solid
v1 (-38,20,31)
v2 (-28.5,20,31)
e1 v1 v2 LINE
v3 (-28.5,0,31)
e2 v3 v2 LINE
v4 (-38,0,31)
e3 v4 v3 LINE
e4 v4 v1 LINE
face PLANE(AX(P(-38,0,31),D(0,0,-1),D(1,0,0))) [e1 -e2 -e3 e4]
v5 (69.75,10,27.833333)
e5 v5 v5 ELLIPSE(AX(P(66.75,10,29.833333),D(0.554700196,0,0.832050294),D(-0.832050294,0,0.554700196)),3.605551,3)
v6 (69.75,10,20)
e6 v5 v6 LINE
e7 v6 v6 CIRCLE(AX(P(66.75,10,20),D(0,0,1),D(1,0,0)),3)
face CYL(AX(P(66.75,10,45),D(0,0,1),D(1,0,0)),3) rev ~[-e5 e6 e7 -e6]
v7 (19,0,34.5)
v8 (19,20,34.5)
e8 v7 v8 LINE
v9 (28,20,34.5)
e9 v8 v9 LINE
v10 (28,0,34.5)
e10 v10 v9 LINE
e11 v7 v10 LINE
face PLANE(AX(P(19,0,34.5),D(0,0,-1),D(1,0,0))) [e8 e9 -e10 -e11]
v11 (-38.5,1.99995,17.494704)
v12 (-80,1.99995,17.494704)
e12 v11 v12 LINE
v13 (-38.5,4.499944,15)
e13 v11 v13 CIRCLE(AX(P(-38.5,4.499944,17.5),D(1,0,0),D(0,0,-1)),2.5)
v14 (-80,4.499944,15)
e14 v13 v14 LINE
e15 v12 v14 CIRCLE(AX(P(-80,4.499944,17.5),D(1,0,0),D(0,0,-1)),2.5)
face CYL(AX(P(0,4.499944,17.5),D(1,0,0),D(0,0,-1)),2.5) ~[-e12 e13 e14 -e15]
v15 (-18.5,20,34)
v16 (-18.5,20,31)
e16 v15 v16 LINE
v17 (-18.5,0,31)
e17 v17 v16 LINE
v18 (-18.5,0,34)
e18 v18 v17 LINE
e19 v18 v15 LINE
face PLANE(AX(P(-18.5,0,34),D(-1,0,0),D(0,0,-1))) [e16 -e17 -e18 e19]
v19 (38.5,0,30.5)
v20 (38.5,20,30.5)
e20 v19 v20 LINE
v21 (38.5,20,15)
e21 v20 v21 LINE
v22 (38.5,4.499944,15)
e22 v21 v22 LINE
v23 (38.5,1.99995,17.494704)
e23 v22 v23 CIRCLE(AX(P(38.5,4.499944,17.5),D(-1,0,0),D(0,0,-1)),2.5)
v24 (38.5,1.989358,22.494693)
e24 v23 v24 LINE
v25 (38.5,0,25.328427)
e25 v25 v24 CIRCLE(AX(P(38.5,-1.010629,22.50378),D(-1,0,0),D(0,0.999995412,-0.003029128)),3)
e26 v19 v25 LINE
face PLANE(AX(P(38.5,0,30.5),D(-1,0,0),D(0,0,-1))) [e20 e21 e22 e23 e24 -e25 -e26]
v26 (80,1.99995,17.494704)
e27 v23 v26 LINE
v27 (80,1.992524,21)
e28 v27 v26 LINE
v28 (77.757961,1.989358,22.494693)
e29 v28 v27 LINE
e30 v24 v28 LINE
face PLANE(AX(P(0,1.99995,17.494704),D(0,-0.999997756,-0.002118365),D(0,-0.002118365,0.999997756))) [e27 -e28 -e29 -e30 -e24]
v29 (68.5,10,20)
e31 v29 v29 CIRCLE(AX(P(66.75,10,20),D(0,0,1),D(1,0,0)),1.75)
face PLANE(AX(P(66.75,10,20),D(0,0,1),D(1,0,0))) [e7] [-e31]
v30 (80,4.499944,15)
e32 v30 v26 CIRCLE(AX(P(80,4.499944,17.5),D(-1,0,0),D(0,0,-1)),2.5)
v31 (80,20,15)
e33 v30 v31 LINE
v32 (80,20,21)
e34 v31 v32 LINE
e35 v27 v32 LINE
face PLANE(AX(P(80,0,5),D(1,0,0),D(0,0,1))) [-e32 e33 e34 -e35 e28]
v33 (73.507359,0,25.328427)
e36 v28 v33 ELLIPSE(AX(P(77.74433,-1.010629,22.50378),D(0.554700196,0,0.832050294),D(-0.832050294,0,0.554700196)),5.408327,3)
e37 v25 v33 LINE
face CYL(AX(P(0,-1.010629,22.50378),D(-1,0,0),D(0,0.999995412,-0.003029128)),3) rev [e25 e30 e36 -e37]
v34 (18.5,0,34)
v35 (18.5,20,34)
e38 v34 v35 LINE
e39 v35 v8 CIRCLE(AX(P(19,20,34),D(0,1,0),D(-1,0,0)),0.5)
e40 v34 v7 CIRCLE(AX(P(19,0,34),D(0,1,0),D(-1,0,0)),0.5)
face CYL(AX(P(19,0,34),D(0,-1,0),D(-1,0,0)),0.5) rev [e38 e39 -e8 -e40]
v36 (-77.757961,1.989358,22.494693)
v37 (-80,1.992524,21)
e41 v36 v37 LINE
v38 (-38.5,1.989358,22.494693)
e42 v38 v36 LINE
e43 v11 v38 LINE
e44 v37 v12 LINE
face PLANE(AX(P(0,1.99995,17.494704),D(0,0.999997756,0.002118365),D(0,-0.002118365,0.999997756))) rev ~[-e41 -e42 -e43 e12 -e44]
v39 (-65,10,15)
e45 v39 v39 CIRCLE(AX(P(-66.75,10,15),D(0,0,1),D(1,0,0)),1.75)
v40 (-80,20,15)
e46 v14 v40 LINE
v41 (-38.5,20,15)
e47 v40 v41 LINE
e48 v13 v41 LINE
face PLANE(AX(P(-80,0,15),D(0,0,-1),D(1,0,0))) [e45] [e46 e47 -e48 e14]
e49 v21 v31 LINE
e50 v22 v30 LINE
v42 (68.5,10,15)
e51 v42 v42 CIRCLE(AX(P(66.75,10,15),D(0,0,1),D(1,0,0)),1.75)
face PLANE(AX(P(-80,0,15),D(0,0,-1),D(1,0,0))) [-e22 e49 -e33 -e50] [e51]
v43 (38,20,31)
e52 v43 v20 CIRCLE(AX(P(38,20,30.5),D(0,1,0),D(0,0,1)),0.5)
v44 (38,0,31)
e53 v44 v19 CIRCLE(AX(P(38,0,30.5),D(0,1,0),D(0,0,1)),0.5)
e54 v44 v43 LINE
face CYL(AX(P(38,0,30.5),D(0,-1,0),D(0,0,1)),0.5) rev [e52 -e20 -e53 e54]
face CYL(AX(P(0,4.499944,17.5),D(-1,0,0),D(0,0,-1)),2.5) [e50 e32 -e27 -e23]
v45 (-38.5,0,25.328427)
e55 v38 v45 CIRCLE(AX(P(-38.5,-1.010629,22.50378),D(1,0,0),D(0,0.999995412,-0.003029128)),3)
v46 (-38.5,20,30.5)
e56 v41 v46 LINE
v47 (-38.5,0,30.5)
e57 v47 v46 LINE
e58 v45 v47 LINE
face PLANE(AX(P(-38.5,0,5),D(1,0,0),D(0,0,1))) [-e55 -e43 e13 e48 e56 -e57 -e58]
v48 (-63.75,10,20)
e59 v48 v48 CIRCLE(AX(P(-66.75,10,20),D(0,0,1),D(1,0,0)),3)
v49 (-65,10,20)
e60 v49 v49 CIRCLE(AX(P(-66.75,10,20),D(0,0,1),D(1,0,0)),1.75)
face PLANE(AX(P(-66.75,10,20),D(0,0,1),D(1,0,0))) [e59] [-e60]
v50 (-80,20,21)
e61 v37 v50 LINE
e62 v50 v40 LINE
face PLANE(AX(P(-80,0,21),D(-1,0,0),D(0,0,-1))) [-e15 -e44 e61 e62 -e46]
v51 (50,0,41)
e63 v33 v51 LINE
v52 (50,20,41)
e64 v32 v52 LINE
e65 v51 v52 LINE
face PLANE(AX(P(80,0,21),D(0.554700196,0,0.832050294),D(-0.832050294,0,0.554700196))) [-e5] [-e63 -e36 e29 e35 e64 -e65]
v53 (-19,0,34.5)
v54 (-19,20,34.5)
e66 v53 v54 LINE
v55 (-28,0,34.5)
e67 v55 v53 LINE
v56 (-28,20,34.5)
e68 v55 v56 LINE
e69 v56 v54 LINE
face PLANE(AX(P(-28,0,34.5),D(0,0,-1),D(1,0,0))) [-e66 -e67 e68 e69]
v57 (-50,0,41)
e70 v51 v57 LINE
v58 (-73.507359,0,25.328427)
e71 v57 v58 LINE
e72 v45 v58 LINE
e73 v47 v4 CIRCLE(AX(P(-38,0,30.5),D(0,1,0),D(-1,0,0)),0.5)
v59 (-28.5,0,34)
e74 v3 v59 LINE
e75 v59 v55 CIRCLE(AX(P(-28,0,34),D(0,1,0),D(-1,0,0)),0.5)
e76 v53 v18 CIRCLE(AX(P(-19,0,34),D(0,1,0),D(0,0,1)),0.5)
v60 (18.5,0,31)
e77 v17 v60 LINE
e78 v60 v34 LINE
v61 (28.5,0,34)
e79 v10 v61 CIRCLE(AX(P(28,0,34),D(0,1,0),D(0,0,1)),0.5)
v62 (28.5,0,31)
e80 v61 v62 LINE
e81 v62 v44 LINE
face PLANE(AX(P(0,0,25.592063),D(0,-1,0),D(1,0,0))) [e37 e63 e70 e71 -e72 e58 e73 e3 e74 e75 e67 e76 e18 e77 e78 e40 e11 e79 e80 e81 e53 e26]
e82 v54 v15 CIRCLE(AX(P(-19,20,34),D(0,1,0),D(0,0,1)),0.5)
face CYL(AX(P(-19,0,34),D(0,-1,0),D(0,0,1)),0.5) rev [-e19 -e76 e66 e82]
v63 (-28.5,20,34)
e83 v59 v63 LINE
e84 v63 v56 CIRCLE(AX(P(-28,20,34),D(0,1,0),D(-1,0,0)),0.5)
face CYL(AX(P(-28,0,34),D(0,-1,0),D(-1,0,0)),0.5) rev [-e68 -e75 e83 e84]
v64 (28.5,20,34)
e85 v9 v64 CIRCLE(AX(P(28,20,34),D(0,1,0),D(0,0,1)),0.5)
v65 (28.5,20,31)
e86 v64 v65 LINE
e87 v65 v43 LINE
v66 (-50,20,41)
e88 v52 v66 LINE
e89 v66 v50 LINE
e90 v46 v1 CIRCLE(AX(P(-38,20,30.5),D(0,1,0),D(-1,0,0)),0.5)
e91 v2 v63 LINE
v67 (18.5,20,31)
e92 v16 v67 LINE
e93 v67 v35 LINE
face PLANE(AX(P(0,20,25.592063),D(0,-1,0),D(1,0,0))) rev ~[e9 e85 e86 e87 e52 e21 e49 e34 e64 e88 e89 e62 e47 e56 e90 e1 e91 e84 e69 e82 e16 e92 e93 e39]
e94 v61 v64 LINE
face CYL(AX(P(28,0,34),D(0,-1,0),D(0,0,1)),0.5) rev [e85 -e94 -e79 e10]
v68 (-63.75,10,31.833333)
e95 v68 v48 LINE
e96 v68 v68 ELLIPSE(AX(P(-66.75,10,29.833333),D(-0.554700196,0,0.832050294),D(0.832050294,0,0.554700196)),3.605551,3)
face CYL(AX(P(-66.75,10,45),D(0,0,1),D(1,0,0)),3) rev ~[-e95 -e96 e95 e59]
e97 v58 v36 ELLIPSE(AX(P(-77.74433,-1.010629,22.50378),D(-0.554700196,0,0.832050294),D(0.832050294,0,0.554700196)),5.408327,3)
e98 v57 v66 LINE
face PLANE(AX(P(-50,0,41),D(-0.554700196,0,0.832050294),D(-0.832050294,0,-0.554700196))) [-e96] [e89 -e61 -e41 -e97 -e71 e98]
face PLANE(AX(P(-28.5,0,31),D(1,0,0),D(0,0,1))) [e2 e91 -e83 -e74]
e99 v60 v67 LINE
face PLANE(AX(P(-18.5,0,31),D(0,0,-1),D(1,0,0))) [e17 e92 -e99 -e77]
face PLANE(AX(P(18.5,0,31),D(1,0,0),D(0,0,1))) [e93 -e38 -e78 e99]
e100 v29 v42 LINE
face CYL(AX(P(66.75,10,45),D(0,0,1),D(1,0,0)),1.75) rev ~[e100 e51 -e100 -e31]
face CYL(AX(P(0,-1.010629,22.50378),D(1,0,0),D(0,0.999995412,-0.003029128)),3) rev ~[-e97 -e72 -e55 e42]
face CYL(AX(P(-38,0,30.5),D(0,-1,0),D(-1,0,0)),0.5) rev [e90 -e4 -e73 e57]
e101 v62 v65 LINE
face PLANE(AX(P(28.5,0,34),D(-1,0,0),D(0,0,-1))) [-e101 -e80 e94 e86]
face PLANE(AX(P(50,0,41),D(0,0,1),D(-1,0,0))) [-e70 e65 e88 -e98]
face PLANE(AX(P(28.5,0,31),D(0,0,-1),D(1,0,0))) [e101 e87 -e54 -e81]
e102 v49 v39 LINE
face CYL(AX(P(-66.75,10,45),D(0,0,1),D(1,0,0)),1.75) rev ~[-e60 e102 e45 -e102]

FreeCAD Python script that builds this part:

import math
import FreeCAD as App
import Part
import Sketcher
from FreeCAD import Vector

doc = App.newDocument("Part")
body = doc.addObject("PartDesign::Body", "Body")

# Sketch on XZ plane
sketch1 = body.newObject("Sketcher::SketchObject", "Sketch")
sketch1.AttachmentSupport = (doc.getObject("XZ_Plane"), [""])
sketch1.MapMode = "FlatFace"
sketch1.addGeometry(Part.LineSegment(Vector(50, 41, 0), Vector(-50, 41, 0)), False)
sketch1.addGeometry(Part.LineSegment(Vector(-50, 41, 0), Vector(-80, 21, 0)), False)
sketch1.addGeometry(Part.LineSegment(Vector(-80, 21, 0), Vector(-80, 5, 0)), False)
sketch1.addGeometry(Part.LineSegment(Vector(-80, 5, 0), Vector(-38.5, 5, 0)), False)
sketch1.addGeometry(Part.LineSegment(Vector(-38.5, 5, 0), Vector(-38.5, 30.5, 0)), False)
sketch1.addGeometry(Part.ArcOfCircle(Part.Circle(Vector(-38, 30.5, 0), Vector(0, 0, 1), 0.5), math.radians(90), math.radians(180)), False)
sketch1.addGeometry(Part.LineSegment(Vector(-38, 31, 0), Vector(-28.5, 31, 0)), False)
sketch1.addGeometry(Part.LineSegment(Vector(-28.5, 31, 0), Vector(-28.5, 34, 0)), False)
sketch1.addGeometry(Part.ArcOfCircle(Part.Circle(Vector(-28, 34, 0), Vector(0, 0, 1), 0.5), math.radians(90), math.radians(180)), False)
sketch1.addGeometry(Part.LineSegment(Vector(-28, 34.5, 0), Vector(-19, 34.5, 0)), False)
sketch1.addGeometry(Part.ArcOfCircle(Part.Circle(Vector(-19, 34, 0), Vector(0, 0, 1), 0.5), math.radians(0), math.radians(90)), False)
sketch1.addGeometry(Part.LineSegment(Vector(-18.5, 34, 0), Vector(-18.5, 31, 0)), False)
sketch1.addGeometry(Part.LineSegment(Vector(-18.5, 31, 0), Vector(18.5, 31, 0)), False)
sketch1.addGeometry(Part.LineSegment(Vector(18.5, 31, 0), Vector(18.5, 34, 0)), False)
sketch1.addGeometry(Part.ArcOfCircle(Part.Circle(Vector(19, 34, 0), Vector(0, 0, 1), 0.5), math.radians(90), math.radians(180)), False)
sketch1.addGeometry(Part.LineSegment(Vector(19, 34.5, 0), Vector(28, 34.5, 0)), False)
sketch1.addGeometry(Part.ArcOfCircle(Part.Circle(Vector(28, 34, 0), Vector(0, 0, 1), 0.5), math.radians(0), math.radians(90)), False)
sketch1.addGeometry(Part.LineSegment(Vector(28.5, 34, 0), Vector(28.5, 31, 0)), False)
sketch1.addGeometry(Part.LineSegment(Vector(28.5, 31, 0), Vector(38, 31, 0)), False)
sketch1.addGeometry(Part.ArcOfCircle(Part.Circle(Vector(38, 30.5, 0), Vector(0, 0, 1), 0.5), math.radians(0), math.radians(90)), False)
sketch1.addGeometry(Part.LineSegment(Vector(38.5, 30.5, 0), Vector(38.5, 5, 0)), False)
sketch1.addGeometry(Part.LineSegment(Vector(38.5, 5, 0), Vector(80, 5, 0)), False)
sketch1.addGeometry(Part.LineSegment(Vector(80, 5, 0), Vector(80, 21, 0)), False)
sketch1.addGeometry(Part.LineSegment(Vector(80, 21, 0), Vector(50, 41, 0)), False)
sketch1.addConstraint(Sketcher.Constraint("Coincident", 0, 2, 1, 1))
sketch1.addConstraint(Sketcher.Constraint("Coincident", 1, 2, 2, 1))
sketch1.addConstraint(Sketcher.Constraint("Coincident", 2, 2, 3, 1))
sketch1.addConstraint(Sketcher.Constraint("Coincident", 3, 2, 4, 1))
sketch1.addConstraint(Sketcher.Constraint("Tangent", 4, 2, 5, 2))
sketch1.addConstraint(Sketcher.Constraint("Tangent", 5, 1, 6, 1))
sketch1.addConstraint(Sketcher.Constraint("Coincident", 6, 2, 7, 1))
sketch1.addConstraint(Sketcher.Constraint("Tangent", 7, 2, 8, 2))
sketch1.addConstraint(Sketcher.Constraint("Tangent", 8, 1, 9, 1))
sketch1.addConstraint(Sketcher.Constraint("Tangent", 9, 2, 10, 2))
sketch1.addConstraint(Sketcher.Constraint("Tangent", 10, 1, 11, 1))
sketch1.addConstraint(Sketcher.Constraint("Coincident", 11, 2, 12, 1))
sketch1.addConstraint(Sketcher.Constraint("Coincident", 12, 2, 13, 1))
sketch1.addConstraint(Sketcher.Constraint("Tangent", 13, 2, 14, 2))
sketch1.addConstraint(Sketcher.Constraint("Tangent", 14, 1, 15, 1))
sketch1.addConstraint(Sketcher.Constraint("Tangent", 15, 2, 16, 2))
sketch1.addConstraint(Sketcher.Constraint("Tangent", 16, 1, 17, 1))
sketch1.addConstraint(Sketcher.Constraint("Coincident", 17, 2, 18, 1))
sketch1.addConstraint(Sketcher.Constraint("Tangent", 18, 2, 19, 2))
sketch1.addConstraint(Sketcher.Constraint("Tangent", 19, 1, 20, 1))
sketch1.addConstraint(Sketcher.Constraint("Coincident", 20, 2, 21, 1))
sketch1.addConstraint(Sketcher.Constraint("Coincident", 21, 2, 22, 1))
sketch1.addConstraint(Sketcher.Constraint("Coincident", 22, 2, 23, 1))
sketch1.addConstraint(Sketcher.Constraint("Coincident", 23, 2, 0, 1))
sketch1.addConstraint(Sketcher.Constraint("Horizontal", 0))
sketch1.addConstraint(Sketcher.Constraint("Vertical", 2))
sketch1.addConstraint(Sketcher.Constraint("Horizontal", 3))
sketch1.addConstraint(Sketcher.Constraint("Vertical", 4))
sketch1.addConstraint(Sketcher.Constraint("Horizontal", 6))
sketch1.addConstraint(Sketcher.Constraint("Vertical", 7))
sketch1.addConstraint(Sketcher.Constraint("Horizontal", 9))
sketch1.addConstraint(Sketcher.Constraint("Vertical", 11))
sketch1.addConstraint(Sketcher.Constraint("Horizontal", 12))
sketch1.addConstraint(Sketcher.Constraint("Vertical", 13))
sketch1.addConstraint(Sketcher.Constraint("Horizontal", 15))
sketch1.addConstraint(Sketcher.Constraint("Vertical", 17))
sketch1.addConstraint(Sketcher.Constraint("Horizontal", 18))
sketch1.addConstraint(Sketcher.Constraint("Vertical", 20))
sketch1.addConstraint(Sketcher.Constraint("Horizontal", 21))
sketch1.addConstraint(Sketcher.Constraint("Vertical", 22))
sketch1.addConstraint(Sketcher.Constraint("Equal", 5, 8))
sketch1.addConstraint(Sketcher.Constraint("Equal", 8, 10))
sketch1.addConstraint(Sketcher.Constraint("Equal", 10, 14))
sketch1.addConstraint(Sketcher.Constraint("Equal", 14, 16))
sketch1.addConstraint(Sketcher.Constraint("Equal", 16, 19))
sketch1.addConstraint(Sketcher.Constraint("Symmetric", 10, 3, 14, 3, -2))
sketch1.addConstraint(Sketcher.Constraint("Symmetric", 5, 3, 19, 3, -2))
sketch1.addConstraint(Sketcher.Constraint("Symmetric", 2, 2, 21, 2, -2))
sketch1.addConstraint(Sketcher.Constraint("Horizontal", 6, 2, 11, 2))
sketch1.addConstraint(Sketcher.Constraint("Horizontal", 1, 2, 22, 2))
sketch1.addConstraint(Sketcher.Constraint("Equal", 9, 15))
sketch1.addConstraint(Sketcher.Constraint("Equal", 1, 23))
sketch1.addConstraint(Sketcher.Constraint("Radius", 5, 0.5))
sketch1.addConstraint(Sketcher.Constraint("DistanceX", 0, 2, 0, 1, 100.0))
sketch1.addConstraint(Sketcher.Constraint("DistanceX", 9, 1, 9, 2, 9.0))
sketch1.addConstraint(Sketcher.Constraint("DistanceX", 12, 1, 12, 2, 37.0))
sketch1.addConstraint(Sketcher.Constraint("DistanceY", 2, 2, 2, 1, 16.0))
sketch1.addConstraint(Sketcher.Constraint("DistanceY", 7, 1, 7, 2, 3.0))
sketch1.addConstraint(Sketcher.Constraint("DistanceX", 3, 1, 3, 2, 41.5))
sketch1.addConstraint(Sketcher.Constraint("DistanceX", 6, 1, 6, 2, 9.5))
sketch1.addConstraint(Sketcher.Constraint("DistanceY", 4, 1, 4, 2, 25.5))
sketch1.addConstraint(Sketcher.Constraint("DistanceY", -1, 1, 8, 3, 34.0))
sketch1.addConstraint(Sketcher.Constraint("DistanceY", -1, 1, 0, 2, 41.0))
pad1 = body.newObject("PartDesign::Pad", "Pad")
pad1.Profile = sketch1
pad1.Length = 20
pad1.Reversed = True

# Sketch on XY plane
sketch2 = body.newObject("Sketcher::SketchObject", "Sketch001")
sketch2.AttachmentSupport = (doc.getObject("XY_Plane"), [""])
sketch2.MapMode = "FlatFace"
sketch2.AttachmentOffset = App.Placement(Vector(0, 0, 45), App.Rotation())
sketch2.addGeometry(Part.Circle(Vector(-66.8, 10, 0), Vector(0, 0, 1), 1.8), False)
sketch2.addGeometry(Part.Circle(Vector(66.8, 10, 0), Vector(0, 0, 1), 1.8), False)
sketch2.addConstraint(Sketcher.Constraint("Equal", 0, 1))
sketch2.addConstraint(Sketcher.Constraint("Symmetric", 0, 3, 1, 3, -2))
sketch2.addConstraint(Sketcher.Constraint("Diameter", 0, 3.5))
sketch2.addConstraint(Sketcher.Constraint("DistanceY", -1, 1, 0, 3, 10.0))
sketch2.addConstraint(Sketcher.Constraint("DistanceX", 0, 3, 1, 3, 133.5))
pocket1 = body.newObject("PartDesign::Pocket", "Pocket")
pocket1.Profile = sketch2
pocket1.Type = "ThroughAll"

# Sketch on XY plane
sketch3 = body.newObject("Sketcher::SketchObject", "Sketch002")
sketch3.AttachmentSupport = (doc.getObject("XY_Plane"), [""])
sketch3.MapMode = "FlatFace"
sketch3.AttachmentOffset = App.Placement(Vector(0, 0, 45), App.Rotation())
sketch3.addGeometry(Part.Circle(Vector(-66.8, 10, 0), Vector(0, 0, 1), 3), False)
sketch3.addGeometry(Part.Circle(Vector(-66.8, 10, 0), Vector(0, 0, 1), 1.8), False)
sketch3.addGeometry(Part.Circle(Vector(66.8, 10, 0), Vector(0, 0, 1), 3), False)
sketch3.addGeometry(Part.Circle(Vector(66.8, 10, 0), Vector(0, 0, 1), 1.8), False)
sketch3.addConstraint(Sketcher.Constraint("Coincident", 1, 3, 0, 3))
sketch3.addConstraint(Sketcher.Constraint("Coincident", 3, 3, 2, 3))
sketch3.addConstraint(Sketcher.Constraint("Equal", 0, 2))
sketch3.addConstraint(Sketcher.Constraint("Equal", 1, 3))
sketch3.addConstraint(Sketcher.Constraint("Symmetric", 0, 3, 2, 3, -2))
sketch3.addConstraint(Sketcher.Constraint("Diameter", 0, 6.0))
sketch3.addConstraint(Sketcher.Constraint("Diameter", 1, 3.5))
sketch3.addConstraint(Sketcher.Constraint("DistanceY", -1, 1, 0, 3, 10.0))
sketch3.addConstraint(Sketcher.Constraint("DistanceX", 0, 3, 2, 3, 133.5))
pocket2 = body.newObject("PartDesign::Pocket", "Pocket001")
pocket2.Profile = sketch3
pocket2.Length = 25

# Sketch on XZ plane
sketch4 = body.newObject("Sketcher::SketchObject", "Sketch003")
sketch4.AttachmentSupport = (doc.getObject("XZ_Plane"), [""])
sketch4.MapMode = "FlatFace"
sketch4.addGeometry(Part.LineSegment(Vector(-80, 15, 0), Vector(-80, 5, 0)), False)
sketch4.addGeometry(Part.LineSegment(Vector(-80, 5, 0), Vector(80, 5, 0)), False)
sketch4.addGeometry(Part.LineSegment(Vector(80, 5, 0), Vector(80, 15, 0)), False)
sketch4.addGeometry(Part.LineSegment(Vector(80, 15, 0), Vector(-80, 15, 0)), False)
sketch4.addConstraint(Sketcher.Constraint("Coincident", 0, 2, 1, 1))
sketch4.addConstraint(Sketcher.Constraint("Coincident", 1, 2, 2, 1))
sketch4.addConstraint(Sketcher.Constraint("Coincident", 2, 2, 3, 1))
sketch4.addConstraint(Sketcher.Constraint("Coincident", 3, 2, 0, 1))
sketch4.addConstraint(Sketcher.Constraint("Vertical", 0))
sketch4.addConstraint(Sketcher.Constraint("Horizontal", 1))
sketch4.addConstraint(Sketcher.Constraint("Vertical", 2))
sketch4.addConstraint(Sketcher.Constraint("Horizontal", 3))
sketch4.addConstraint(Sketcher.Constraint("DistanceX", 1, 1, 1, 2, 160.0))
sketch4.addConstraint(Sketcher.Constraint("DistanceY", 0, 2, 0, 1, 10.0))
sketch4.addConstraint(Sketcher.Constraint("DistanceX", 0, 2, -1, 1, 80.0))
sketch4.addConstraint(Sketcher.Constraint("DistanceY", -1, 1, 0, 2, 5.0))
pocket3 = body.newObject("PartDesign::Pocket", "Pocket002")
pocket3.Profile = sketch4
pocket3.Type = "ThroughAll"

# Sketch on YZ plane
sketch5 = body.newObject("Sketcher::SketchObject", "Sketch004")
sketch5.AttachmentSupport = (doc.getObject("YZ_Plane"), [""])
sketch5.MapMode = "FlatFace"
sketch5.addGeometry(Part.ArcOfCircle(Part.Circle(Vector(4.5, 17.5, 0), Vector(0, 0, 1), 2.5), math.radians(-180), math.radians(-90)), False)
sketch5.addGeometry(Part.LineSegment(Vector(2, 17.5, 0), Vector(2, 22.5, 0)), False)
sketch5.addGeometry(Part.ArcOfCircle(Part.Circle(Vector(-1, 22.5, 0), Vector(0, 0, 1), 3), math.radians(0), math.radians(70)), False)
sketch5.addGeometry(Part.LineSegment(Vector(0, 25.3, 0), Vector(0, 15, 0)), False)
sketch5.addGeometry(Part.LineSegment(Vector(0, 15, 0), Vector(4.5, 15, 0)), False)
sketch5.addConstraint(Sketcher.Constraint("Tangent", 0, 1, 1, 1))
sketch5.addConstraint(Sketcher.Constraint("Coincident", 1, 2, 2, 1))
sketch5.addConstraint(Sketcher.Constraint("Coincident", 2, 2, 3, 1))
sketch5.addConstraint(Sketcher.Constraint("Coincident", 3, 2, 4, 1))
sketch5.addConstraint(Sketcher.Constraint("Tangent", 4, 2, 0, 2))
sketch5.addConstraint(Sketcher.Constraint("Vertical", 3))
sketch5.addConstraint(Sketcher.Constraint("Horizontal", 4))
sketch5.addConstraint(Sketcher.Constraint("PointOnObject", 2, 2, -2))
sketch5.addConstraint(Sketcher.Constraint("Radius", 2, 3.0))
sketch5.addConstraint(Sketcher.Constraint("Radius", 0, 2.5))
sketch5.addConstraint(Sketcher.Constraint("Distance", 1, 5.0))
sketch5.addConstraint(Sketcher.Constraint("DistanceY", -1, 1, 3, 2, 15.0))
sketch5.addConstraint(Sketcher.Constraint("DistanceX", 4, 1, 4, 2, 4.499944))
sketch5.addConstraint(Sketcher.Constraint("DistanceY", 3, 2, 3, 1, 10.328427))
sketch5.addConstraint(Sketcher.Constraint("DistanceX", 2, 3, -1, 1, 1.010629))
pocket4 = body.newObject("PartDesign::Pocket", "Pocket003")
pocket4.Profile = sketch5
pocket4.Type = "ThroughAll"
pocket4.Midplane = True

doc.recompute()
